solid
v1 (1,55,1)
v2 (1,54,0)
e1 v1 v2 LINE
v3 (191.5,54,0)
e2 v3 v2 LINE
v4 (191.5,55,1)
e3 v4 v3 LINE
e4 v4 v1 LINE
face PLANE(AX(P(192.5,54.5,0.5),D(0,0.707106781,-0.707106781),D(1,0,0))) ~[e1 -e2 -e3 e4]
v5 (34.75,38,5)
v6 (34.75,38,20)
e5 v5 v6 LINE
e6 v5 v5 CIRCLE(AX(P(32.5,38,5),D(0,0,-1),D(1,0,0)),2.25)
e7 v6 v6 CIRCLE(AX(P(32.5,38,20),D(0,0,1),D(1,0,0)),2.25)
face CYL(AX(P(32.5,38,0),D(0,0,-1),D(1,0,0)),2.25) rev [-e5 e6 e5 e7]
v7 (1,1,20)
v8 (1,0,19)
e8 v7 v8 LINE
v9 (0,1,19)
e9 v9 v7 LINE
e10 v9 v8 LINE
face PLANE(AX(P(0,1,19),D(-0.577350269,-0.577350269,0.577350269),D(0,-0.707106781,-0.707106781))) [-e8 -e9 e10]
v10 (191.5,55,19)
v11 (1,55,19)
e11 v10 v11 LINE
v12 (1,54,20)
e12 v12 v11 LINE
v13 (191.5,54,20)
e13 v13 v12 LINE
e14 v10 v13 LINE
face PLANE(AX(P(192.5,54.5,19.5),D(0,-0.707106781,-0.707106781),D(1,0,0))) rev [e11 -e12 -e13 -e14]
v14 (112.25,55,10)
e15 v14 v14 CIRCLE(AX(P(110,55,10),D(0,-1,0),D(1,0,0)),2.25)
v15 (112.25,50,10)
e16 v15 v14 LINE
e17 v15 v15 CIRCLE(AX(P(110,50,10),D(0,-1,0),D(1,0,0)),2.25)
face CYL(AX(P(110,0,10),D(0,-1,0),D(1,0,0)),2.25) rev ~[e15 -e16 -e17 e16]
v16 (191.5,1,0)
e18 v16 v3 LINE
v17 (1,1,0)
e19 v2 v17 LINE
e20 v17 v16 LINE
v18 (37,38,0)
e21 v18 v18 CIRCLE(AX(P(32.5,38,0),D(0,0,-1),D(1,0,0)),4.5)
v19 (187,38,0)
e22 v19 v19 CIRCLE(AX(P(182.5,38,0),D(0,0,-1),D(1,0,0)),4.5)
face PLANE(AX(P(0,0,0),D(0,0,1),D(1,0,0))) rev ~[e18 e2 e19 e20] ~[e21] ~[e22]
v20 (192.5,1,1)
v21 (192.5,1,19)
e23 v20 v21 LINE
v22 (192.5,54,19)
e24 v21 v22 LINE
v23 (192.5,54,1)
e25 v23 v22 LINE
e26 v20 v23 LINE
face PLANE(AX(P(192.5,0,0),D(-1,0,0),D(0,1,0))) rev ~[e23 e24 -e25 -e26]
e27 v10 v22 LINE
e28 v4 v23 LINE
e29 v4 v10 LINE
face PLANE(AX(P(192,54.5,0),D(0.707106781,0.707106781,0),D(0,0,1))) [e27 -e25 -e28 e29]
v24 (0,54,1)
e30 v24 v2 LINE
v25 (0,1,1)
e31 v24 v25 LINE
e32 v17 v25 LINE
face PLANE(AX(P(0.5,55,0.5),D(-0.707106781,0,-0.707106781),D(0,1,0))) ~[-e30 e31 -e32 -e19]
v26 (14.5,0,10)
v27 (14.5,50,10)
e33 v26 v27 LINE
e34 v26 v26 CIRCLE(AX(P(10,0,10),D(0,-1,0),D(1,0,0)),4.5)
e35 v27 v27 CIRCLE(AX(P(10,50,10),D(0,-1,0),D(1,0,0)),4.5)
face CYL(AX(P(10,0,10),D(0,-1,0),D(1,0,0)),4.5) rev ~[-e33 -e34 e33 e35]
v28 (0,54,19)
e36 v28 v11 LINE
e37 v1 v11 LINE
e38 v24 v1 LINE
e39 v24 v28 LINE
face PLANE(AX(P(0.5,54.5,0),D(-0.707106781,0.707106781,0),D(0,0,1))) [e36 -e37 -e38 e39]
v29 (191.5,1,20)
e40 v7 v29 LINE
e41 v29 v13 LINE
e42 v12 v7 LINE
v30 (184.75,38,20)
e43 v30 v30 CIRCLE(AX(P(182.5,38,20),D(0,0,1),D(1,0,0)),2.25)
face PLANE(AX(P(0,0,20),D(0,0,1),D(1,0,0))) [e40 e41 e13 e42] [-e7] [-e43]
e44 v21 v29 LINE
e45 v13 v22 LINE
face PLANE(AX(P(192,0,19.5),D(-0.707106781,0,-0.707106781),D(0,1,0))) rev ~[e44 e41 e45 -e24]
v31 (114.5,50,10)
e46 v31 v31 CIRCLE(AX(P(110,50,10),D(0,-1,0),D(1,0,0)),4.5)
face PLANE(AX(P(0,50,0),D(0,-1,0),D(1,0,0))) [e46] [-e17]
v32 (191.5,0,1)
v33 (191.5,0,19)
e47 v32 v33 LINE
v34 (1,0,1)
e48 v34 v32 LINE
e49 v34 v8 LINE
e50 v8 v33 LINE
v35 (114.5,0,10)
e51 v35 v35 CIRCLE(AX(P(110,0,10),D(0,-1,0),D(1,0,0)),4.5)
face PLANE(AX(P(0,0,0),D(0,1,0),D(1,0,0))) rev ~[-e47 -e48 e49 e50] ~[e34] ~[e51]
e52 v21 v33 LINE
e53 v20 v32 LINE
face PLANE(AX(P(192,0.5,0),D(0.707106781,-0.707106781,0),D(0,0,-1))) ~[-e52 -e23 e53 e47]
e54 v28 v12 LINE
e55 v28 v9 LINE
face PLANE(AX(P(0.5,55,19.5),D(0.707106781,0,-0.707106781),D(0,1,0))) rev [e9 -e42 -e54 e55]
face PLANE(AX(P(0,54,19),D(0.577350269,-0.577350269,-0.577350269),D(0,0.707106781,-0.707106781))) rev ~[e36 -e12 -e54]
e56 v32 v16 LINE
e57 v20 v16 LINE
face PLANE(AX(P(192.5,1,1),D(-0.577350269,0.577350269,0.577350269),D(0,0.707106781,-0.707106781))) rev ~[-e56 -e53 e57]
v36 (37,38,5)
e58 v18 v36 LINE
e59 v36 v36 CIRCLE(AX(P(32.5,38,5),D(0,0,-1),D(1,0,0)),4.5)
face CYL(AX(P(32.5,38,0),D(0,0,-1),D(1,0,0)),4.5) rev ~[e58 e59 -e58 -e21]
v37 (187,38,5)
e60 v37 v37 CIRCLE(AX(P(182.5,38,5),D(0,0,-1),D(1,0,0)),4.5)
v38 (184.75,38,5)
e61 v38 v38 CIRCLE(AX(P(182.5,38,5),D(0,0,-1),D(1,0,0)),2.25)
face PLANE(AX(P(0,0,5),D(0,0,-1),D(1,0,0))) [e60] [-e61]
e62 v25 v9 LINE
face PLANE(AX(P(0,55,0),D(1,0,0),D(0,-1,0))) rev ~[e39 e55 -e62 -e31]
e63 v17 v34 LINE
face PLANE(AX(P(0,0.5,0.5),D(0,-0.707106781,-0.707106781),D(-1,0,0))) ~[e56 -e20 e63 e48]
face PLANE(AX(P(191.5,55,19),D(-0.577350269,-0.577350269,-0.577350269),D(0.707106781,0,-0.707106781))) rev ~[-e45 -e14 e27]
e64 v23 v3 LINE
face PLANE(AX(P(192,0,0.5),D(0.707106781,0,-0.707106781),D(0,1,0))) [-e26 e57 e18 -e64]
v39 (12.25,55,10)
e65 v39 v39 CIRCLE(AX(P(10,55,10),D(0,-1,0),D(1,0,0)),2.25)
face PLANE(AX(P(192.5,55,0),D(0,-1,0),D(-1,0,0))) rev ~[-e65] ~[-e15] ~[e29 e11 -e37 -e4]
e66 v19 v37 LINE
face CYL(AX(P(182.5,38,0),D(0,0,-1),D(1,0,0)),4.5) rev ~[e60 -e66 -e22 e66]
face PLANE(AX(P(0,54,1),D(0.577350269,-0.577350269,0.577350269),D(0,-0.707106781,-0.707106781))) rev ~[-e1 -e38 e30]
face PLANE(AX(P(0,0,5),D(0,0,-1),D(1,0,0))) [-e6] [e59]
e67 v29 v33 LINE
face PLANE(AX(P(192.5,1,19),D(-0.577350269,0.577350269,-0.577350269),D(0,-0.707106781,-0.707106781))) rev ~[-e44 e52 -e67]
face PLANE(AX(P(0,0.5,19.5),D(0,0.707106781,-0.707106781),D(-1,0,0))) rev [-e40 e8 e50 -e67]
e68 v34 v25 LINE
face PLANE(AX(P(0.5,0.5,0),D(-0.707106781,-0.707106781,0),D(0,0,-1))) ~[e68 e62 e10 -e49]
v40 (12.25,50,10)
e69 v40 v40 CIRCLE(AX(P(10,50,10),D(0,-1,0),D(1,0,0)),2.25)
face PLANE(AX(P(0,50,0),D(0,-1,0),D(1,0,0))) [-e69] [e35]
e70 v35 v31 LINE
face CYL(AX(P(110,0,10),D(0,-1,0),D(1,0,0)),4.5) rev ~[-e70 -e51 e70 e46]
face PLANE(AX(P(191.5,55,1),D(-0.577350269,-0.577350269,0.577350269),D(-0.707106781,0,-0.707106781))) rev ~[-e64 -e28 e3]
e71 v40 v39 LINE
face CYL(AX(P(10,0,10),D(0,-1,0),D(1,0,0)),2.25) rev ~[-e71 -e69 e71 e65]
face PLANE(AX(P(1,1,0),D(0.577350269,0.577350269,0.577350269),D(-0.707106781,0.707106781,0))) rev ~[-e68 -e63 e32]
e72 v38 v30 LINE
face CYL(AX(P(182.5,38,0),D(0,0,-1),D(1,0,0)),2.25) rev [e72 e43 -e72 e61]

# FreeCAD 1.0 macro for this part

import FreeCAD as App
import Part
import Sketcher

V = App.Vector
Q = App.Units.Quantity


def edges_at(feature, points):
    """Names of the edges that pass closest to the given points."""
    edges = feature.Shape.Edges
    near = lambda p: min(range(len(edges)), key=lambda i: edges[i].distToShape(Part.Vertex(*p))[0])
    return sorted({f"Edge{near(p) + 1}" for p in points})


def add_polygon(sketch, points):
    """Adds a closed chain of lines whose ends are joined by coincident constraints."""
    first, n = sketch.GeometryCount, len(points)
    for a, b in zip(points, points[1:] + points[:1]):
        sketch.addGeometry(Part.LineSegment(App.Vector(*a, 0), App.Vector(*b, 0)), False)
    for i in range(n):
        sketch.addConstraint(Sketcher.Constraint("Coincident", first + i, 2, first + (i + 1) % n, 1))

doc = App.newDocument("Part")
body = doc.addObject("PartDesign::Body", "Body")

# Sketch on XY plane
sketch1 = body.newObject("Sketcher::SketchObject", "Sketch")
sketch1.AttachmentSupport = (doc.getObject("XY_Plane"), [""])
sketch1.MapMode = "FlatFace"
add_polygon(sketch1, [(0, 55), (0, 0), (192.5, 0), (192.5, 55)])  # lines 0-3
sketch1.addGeometry(Part.Circle(V(32.5, 38, 0), V(0, 0, 1), 2.2), False)  # 4
sketch1.addGeometry(Part.Circle(V(182.5, 38, 0), V(0, 0, 1), 2.2), False)  # 5
sketch1.addConstraint([
    Sketcher.Constraint("Vertical", 0),
    Sketcher.Constraint("Horizontal", 1),
    Sketcher.Constraint("Vertical", 2),
    Sketcher.Constraint("Horizontal", 3),
    Sketcher.Constraint("Coincident", 0, 2, -1, 1),
    Sketcher.Constraint("Equal", 4, 5),
    Sketcher.Constraint("Horizontal", 4, 3, 5, 3),
    Sketcher.Constraint("Diameter", 4, Q("4.5 mm")),
    Sketcher.Constraint("DistanceY", 0, 2, 0, 1, Q("55 mm")),
    Sketcher.Constraint("DistanceX", 1, 1, 1, 2, Q("192.5 mm")),
    Sketcher.Constraint("DistanceX", 4, 3, 5, 3, Q("150 mm")),
    Sketcher.Constraint("DistanceY", 5, 3, 2, 2, Q("17 mm")),
    Sketcher.Constraint("DistanceX", -1, 1, 4, 3, Q("32.5 mm")),
])
pad1 = body.newObject("PartDesign::Pad", "Pad")
pad1.Profile = sketch1
pad1.Length = 20

# Sketch on XY plane
sketch2 = body.newObject("Sketcher::SketchObject", "Sketch001")
sketch2.AttachmentSupport = (doc.getObject("XY_Plane"), [""])
sketch2.MapMode = "FlatFace"
sketch2.addGeometry([
    Part.Circle(V(32.5, 38, 0), V(0, 0, 1), 4.5),
    Part.Circle(V(32.5, 38, 0), V(0, 0, 1), 2.2),
    Part.Circle(V(182.5, 38, 0), V(0, 0, 1), 4.5),
    Part.Circle(V(182.5, 38, 0), V(0, 0, 1), 2.2),
], False)
sketch2.addConstraint([
    Sketcher.Constraint("Coincident", 1, 3, 0, 3),
    Sketcher.Constraint("Coincident", 3, 3, 2, 3),
    Sketcher.Constraint("Equal", 0, 2),
    Sketcher.Constraint("Equal", 1, 3),
    Sketcher.Constraint("Horizontal", 1, 3, 2, 3),
    Sketcher.Constraint("Diameter", 0, Q("9 mm")),
    Sketcher.Constraint("Diameter", 1, Q("4.5 mm")),
    Sketcher.Constraint("DistanceY", -1, 1, 0, 3, Q("38 mm")),
    Sketcher.Constraint("DistanceX", 0, 3, 2, 3, Q("150 mm")),
    Sketcher.Constraint("DistanceX", -1, 1, 0, 3, Q("32.5 mm")),
])
pocket1 = body.newObject("PartDesign::Pocket", "Pocket")
pocket1.Profile = sketch2
pocket1.Length = 5
pocket1.Reversed = True

# Sketch on XZ plane
sketch3 = body.newObject("Sketcher::SketchObject", "Sketch002")
sketch3.AttachmentSupport = (doc.getObject("XZ_Plane"), [""])
sketch3.MapMode = "FlatFace"
sketch3.addGeometry([
    Part.Circle(V(10, 10, 0), V(0, 0, 1), 2.2),
    Part.Circle(V(110, 10, 0), V(0, 0, 1), 2.2),
], False)
sketch3.addConstraint([
    Sketcher.Constraint("Equal", 0, 1),
    Sketcher.Constraint("Horizontal", 0, 3, 1, 3),
    Sketcher.Constraint("Diameter", 0, Q("4.5 mm")),
    Sketcher.Constraint("DistanceX", -1, 1, 0, 3, Q("10 mm")),
    Sketcher.Constraint("DistanceY", -1, 1, 0, 3, Q("10 mm")),
    Sketcher.Constraint("DistanceX", 0, 3, 1, 3, Q("100 mm")),
])
pocket2 = body.newObject("PartDesign::Pocket", "Pocket001")
pocket2.Profile = sketch3
pocket2.Type = "ThroughAll"

# Sketch on XZ plane
sketch4 = body.newObject("Sketcher::SketchObject", "Sketch003")
sketch4.AttachmentSupport = (doc.getObject("XZ_Plane"), [""])
sketch4.MapMode = "FlatFace"
sketch4.addGeometry([
    Part.Circle(V(10, 10, 0), V(0, 0, 1), 4.5),
    Part.Circle(V(10, 10, 0), V(0, 0, 1), 2.2),
    Part.Circle(V(110, 10, 0), V(0, 0, 1), 4.5),
    Part.Circle(V(110, 10, 0), V(0, 0, 1), 2.2),
], False)
sketch4.addConstraint([
    Sketcher.Constraint("Coincident", 1, 3, 0, 3),
    Sketcher.Constraint("Coincident", 3, 3, 2, 3),
    Sketcher.Constraint("Equal", 0, 2),
    Sketcher.Constraint("Equal", 1, 3),
    Sketcher.Constraint("Horizontal", 1, 3, 2, 3),
    Sketcher.Constraint("Diameter", 0, Q("9 mm")),
    Sketcher.Constraint("Diameter", 1, Q("4.5 mm")),
    Sketcher.Constraint("DistanceX", -1, 1, 0, 3, Q("10 mm")),
    Sketcher.Constraint("DistanceY", -1, 1, 0, 3, Q("10 mm")),
    Sketcher.Constraint("DistanceX", -1, 1, 2, 3, Q("110 mm")),
])
pocket3 = body.newObject("PartDesign::Pocket", "Pocket002")
pocket3.Profile = sketch4
pocket3.Length = 50
doc.recompute()

chamfer = body.newObject("PartDesign::Chamfer", "Chamfer")
chamfer.Base = (pocket3, edges_at(pocket3, [
    (96.25, 0, 20),
    (192.5, 27.5, 20),
    (96.25, 55, 20),
    (0, 27.5, 20),
    (0, 0, 10),
    (96.25, 0, 0),
    (192.5, 0, 10),
    (192.5, 27.5, 0),
    (192.5, 55, 10),
    (96.25, 55, 0),
    (0, 55, 10),
    (0, 27.5, 0),
]))
chamfer.Size = 1

doc.recompute()
